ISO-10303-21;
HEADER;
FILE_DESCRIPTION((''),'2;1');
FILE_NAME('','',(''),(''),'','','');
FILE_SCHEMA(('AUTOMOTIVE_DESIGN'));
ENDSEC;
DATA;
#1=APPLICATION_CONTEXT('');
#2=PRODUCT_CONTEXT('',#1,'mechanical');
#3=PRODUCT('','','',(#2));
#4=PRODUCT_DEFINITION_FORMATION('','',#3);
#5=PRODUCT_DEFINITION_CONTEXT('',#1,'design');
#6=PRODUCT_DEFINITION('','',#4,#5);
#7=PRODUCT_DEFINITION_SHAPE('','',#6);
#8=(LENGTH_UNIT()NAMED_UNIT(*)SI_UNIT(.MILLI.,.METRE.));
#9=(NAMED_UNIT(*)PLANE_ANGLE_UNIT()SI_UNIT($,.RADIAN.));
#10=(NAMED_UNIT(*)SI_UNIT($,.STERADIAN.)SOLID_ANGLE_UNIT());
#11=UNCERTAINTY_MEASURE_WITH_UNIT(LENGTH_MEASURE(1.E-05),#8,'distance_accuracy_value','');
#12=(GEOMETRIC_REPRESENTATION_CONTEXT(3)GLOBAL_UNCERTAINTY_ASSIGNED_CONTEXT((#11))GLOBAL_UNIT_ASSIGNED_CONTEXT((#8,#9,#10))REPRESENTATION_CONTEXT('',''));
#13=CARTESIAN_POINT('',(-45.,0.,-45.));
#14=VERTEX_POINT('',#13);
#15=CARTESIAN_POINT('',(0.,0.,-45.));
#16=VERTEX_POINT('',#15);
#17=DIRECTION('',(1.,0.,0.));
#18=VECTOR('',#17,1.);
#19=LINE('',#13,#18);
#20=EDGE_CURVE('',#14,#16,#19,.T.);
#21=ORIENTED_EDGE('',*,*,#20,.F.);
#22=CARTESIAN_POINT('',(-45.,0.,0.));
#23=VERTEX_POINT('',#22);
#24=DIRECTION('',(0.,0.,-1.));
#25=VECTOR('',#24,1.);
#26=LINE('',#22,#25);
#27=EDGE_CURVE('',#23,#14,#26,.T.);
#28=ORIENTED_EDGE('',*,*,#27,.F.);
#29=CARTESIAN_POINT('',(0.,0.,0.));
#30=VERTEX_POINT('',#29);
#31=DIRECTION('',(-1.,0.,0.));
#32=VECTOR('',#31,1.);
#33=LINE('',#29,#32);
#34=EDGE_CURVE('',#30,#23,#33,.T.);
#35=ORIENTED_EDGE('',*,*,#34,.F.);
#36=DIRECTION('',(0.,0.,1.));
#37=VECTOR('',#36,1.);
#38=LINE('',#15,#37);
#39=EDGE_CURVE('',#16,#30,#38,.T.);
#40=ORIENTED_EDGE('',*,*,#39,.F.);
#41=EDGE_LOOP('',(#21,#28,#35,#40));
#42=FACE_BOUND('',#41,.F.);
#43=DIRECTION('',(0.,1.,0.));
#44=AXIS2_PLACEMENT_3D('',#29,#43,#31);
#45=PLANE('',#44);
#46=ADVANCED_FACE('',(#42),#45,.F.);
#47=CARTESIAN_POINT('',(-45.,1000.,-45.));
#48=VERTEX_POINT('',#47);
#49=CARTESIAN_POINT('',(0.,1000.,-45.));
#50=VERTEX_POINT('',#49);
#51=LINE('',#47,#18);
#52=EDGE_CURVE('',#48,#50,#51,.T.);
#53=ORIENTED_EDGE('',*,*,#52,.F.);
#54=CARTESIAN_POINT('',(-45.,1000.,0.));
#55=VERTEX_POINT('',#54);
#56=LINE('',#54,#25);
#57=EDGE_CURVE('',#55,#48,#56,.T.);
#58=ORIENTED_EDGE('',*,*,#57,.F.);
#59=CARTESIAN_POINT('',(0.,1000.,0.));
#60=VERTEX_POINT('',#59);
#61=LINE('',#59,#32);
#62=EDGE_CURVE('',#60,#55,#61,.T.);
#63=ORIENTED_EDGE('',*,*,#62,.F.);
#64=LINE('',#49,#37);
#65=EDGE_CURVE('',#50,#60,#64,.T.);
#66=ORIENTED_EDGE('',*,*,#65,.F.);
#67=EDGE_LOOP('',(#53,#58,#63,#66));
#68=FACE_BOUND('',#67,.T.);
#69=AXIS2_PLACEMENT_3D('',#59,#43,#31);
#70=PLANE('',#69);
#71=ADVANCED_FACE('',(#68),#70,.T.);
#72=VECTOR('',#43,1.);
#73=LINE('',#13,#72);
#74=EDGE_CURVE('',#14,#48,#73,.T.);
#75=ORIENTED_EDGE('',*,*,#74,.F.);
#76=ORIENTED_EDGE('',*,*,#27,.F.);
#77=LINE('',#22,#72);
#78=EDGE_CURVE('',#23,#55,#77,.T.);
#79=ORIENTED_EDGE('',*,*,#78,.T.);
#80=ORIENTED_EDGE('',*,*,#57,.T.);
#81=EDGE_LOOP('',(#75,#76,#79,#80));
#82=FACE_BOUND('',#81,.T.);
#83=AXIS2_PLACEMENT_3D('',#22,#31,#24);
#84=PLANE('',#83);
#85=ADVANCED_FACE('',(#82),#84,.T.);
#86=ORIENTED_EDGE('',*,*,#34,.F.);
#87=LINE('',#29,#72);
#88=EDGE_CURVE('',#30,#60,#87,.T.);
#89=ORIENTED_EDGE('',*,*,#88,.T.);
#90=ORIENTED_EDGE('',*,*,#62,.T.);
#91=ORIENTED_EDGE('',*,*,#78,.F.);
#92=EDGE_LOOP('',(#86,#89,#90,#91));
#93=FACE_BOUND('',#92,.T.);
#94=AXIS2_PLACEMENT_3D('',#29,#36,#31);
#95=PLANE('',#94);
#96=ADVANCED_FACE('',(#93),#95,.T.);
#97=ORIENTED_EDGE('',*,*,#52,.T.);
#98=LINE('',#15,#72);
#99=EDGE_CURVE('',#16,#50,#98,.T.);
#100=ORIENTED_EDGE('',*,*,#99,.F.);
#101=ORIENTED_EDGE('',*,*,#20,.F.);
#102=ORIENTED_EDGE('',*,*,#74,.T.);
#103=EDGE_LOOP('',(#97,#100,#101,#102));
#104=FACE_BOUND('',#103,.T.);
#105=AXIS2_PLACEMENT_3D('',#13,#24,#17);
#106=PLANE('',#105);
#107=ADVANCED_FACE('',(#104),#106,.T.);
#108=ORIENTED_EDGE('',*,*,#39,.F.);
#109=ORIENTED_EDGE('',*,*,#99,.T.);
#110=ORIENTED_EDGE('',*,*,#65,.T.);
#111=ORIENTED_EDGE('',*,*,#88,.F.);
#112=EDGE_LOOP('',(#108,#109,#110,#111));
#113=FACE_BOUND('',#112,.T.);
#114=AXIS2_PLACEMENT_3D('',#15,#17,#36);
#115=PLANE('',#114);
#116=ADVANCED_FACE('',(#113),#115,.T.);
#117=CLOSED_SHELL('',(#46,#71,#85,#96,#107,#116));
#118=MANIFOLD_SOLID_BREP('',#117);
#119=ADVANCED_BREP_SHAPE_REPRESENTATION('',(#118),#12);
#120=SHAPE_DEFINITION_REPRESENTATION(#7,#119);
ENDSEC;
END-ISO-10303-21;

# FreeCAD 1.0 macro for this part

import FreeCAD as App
import Part
import Sketcher


def add_polygon(sketch, points):
    """Adds a closed chain of lines whose ends are joined by coincident constraints."""
    first, n = sketch.GeometryCount, len(points)
    for a, b in zip(points, points[1:] + points[:1]):
        sketch.addGeometry(Part.LineSegment(App.Vector(*a, 0), App.Vector(*b, 0)), False)
    for i in range(n):
        sketch.addConstraint(Sketcher.Constraint("Coincident", first + i, 2, first + (i + 1) % n, 1))

doc = App.newDocument("Part")
body = doc.addObject("PartDesign::Body", "Body")

# Sketch on XZ plane
sketch1 = body.newObject("Sketcher::SketchObject", "Sketch")
sketch1.AttachmentSupport = (doc.getObject("XZ_Plane"), [""])
sketch1.MapMode = "FlatFace"
add_polygon(sketch1, [(-45, 0), (0, 0), (0, -45), (-45, -45)])  # lines 0-3
sketch1.addConstraint(Sketcher.Constraint("Horizontal", 0))
sketch1.addConstraint(Sketcher.Constraint("Vertical", 1))
sketch1.addConstraint(Sketcher.Constraint("Horizontal", 2))
sketch1.addConstraint(Sketcher.Constraint("Vertical", 3))
sketch1.addConstraint(Sketcher.Constraint("Coincident", 0, 2, -1, 1))
sketch1.addConstraint(Sketcher.Constraint("Equal", 2, 1))
sketch1.addConstraint(Sketcher.Constraint("DistanceX", 0, 1, 0, 2, 45.0))
pad1 = body.newObject("PartDesign::Pad", "Pad")
pad1.Profile = sketch1
pad1.Length = 1000
pad1.Reversed = True

doc.recompute()
